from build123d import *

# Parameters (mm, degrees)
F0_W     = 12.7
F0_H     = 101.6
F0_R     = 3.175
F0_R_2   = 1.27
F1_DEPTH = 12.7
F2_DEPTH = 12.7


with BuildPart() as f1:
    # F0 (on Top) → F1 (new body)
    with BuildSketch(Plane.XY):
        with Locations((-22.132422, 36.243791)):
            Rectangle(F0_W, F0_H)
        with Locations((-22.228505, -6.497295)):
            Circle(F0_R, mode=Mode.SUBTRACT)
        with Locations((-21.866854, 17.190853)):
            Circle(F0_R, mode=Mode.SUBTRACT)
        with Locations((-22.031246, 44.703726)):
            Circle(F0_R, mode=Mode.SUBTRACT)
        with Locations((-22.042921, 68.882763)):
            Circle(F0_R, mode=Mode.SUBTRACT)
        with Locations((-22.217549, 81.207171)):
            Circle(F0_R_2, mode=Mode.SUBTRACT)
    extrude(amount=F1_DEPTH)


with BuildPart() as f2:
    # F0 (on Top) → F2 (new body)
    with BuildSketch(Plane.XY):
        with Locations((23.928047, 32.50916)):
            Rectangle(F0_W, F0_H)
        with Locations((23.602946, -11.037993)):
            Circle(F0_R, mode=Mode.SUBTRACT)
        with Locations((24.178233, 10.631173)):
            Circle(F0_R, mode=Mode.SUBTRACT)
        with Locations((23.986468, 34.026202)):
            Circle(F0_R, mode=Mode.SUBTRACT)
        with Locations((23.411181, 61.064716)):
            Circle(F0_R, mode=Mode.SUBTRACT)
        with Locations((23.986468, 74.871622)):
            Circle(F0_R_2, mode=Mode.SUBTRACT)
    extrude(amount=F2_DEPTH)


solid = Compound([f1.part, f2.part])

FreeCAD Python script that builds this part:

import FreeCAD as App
import Part
import Sketcher

V = App.Vector
Q = App.Units.Quantity


def add_polygon(sketch, points):
    """Adds a closed chain of lines whose ends are joined by coincident constraints."""
    first, n = sketch.GeometryCount, len(points)
    for a, b in zip(points, points[1:] + points[:1]):
        sketch.addGeometry(Part.LineSegment(App.Vector(*a, 0), App.Vector(*b, 0)), False)
    for i in range(n):
        sketch.addConstraint(Sketcher.Constraint("Coincident", first + i, 2, first + (i + 1) % n, 1))

doc = App.newDocument("Part")
body = doc.addObject("PartDesign::Body", "Body")

sketch1 = body.newObject("Sketcher::SketchObject", "Sketch")
sketch1.AttachmentSupport = (doc.getObject("XY_Plane"), [""])
sketch1.MapMode = "FlatFace"
add_polygon(sketch1, [(-28.5, 87), (-28.5, -14.6), (-15.8, -14.6), (-15.8, 87)])
sketch1.addGeometry(Part.Circle(V(-22.2, -6.5, 0), V(0, 0, 1), 3.2), False)
sketch1.addGeometry(Part.Circle(V(-21.9, 17.2, 0), V(0, 0, 1), 3.2), False)
sketch1.addGeometry(Part.Circle(V(-22.2, 81.2, 0), V(0, 0, 1), 1.3), False)
sketch1.addGeometry(Part.Circle(V(-22, 44.7, 0), V(0, 0, 1), 3.2), False)
sketch1.addGeometry(Part.Circle(V(-22, 68.9, 0), V(0, 0, 1), 3.2), False)
sketch1.addConstraint(Sketcher.Constraint("Vertical", 0))
sketch1.addConstraint(Sketcher.Constraint("Horizontal", 1))
sketch1.addConstraint(Sketcher.Constraint("Vertical", 2))
sketch1.addConstraint(Sketcher.Constraint("Horizontal", 3))
sketch1.addConstraint(Sketcher.Constraint("Equal", 4, 5))
sketch1.addConstraint(Sketcher.Constraint("Equal", 5, 7))
sketch1.addConstraint(Sketcher.Constraint("Equal", 7, 8))
sketch1.addConstraint(Sketcher.Constraint("Diameter", 6, Q("0.1 in")))
sketch1.addConstraint(Sketcher.Constraint("Diameter", 4, Q("0.25 in")))
sketch1.addConstraint(Sketcher.Constraint("DistanceY", 0, 2, 0, 1, Q("4 in")))
sketch1.addConstraint(Sketcher.Constraint("DistanceX", 1, 1, 1, 2, Q("0.5 in")))
sketch1.addConstraint(Sketcher.Constraint("DistanceX", 0, 2, 8, 3, Q("6.439501 mm")))
sketch1.addConstraint(Sketcher.Constraint("DistanceX", 6, 3, -1, 1, Q("22.217549 mm")))
sketch1.addConstraint(Sketcher.Constraint("DistanceY", -1, 1, 6, 3, Q("81.207171 mm")))
sketch1.addConstraint(Sketcher.Constraint("DistanceX", 8, 3, -1, 1, Q("22.042921 mm")))
sketch1.addConstraint(Sketcher.Constraint("DistanceY", 0, 2, -1, 1, Q("14.556209 mm")))
sketch1.addConstraint(Sketcher.Constraint("DistanceX", 4, 3, 5, 3, Q("0.361651 mm")))
sketch1.addConstraint(Sketcher.Constraint("DistanceY", 4, 3, 5, 3, Q("23.688148 mm")))
sketch1.addConstraint(Sketcher.Constraint("DistanceY", 5, 3, 6, 3, Q("64.016318 mm")))
sketch1.addConstraint(Sketcher.Constraint("DistanceX", 7, 3, 5, 3, Q("0.164392 mm")))
sketch1.addConstraint(Sketcher.Constraint("DistanceY", 4, 3, 7, 3, Q("51.201021 mm")))
sketch1.addConstraint(Sketcher.Constraint("DistanceY", 8, 3, 6, 3, Q("12.324408 mm")))
sketch1.addConstraint(Sketcher.Constraint("DistanceX", 5, 3, 1, 2, Q("6.084432 mm")))
pad1 = body.newObject("PartDesign::Pad", "Pad")
pad1.Profile = sketch1
pad1.Length = Q("0.5 in")
body2 = doc.addObject("PartDesign::Body", "Body001")

sketch2 = body2.newObject("Sketcher::SketchObject", "Sketch001")
sketch2.AttachmentSupport = (doc.getObject("XY_Plane001"), [""])
sketch2.MapMode = "FlatFace"
add_polygon(sketch2, [(17.6, 83.3), (17.6, -18.3), (30.3, -18.3), (30.3, 83.3)])
sketch2.addGeometry(Part.Circle(V(23.6, -11, 0), V(0, 0, 1), 3.2), False)
sketch2.addGeometry(Part.Circle(V(24.2, 10.6, 0), V(0, 0, 1), 3.2), False)
sketch2.addGeometry(Part.Circle(V(23.4, 61.1, 0), V(0, 0, 1), 3.2), False)
sketch2.addGeometry(Part.Circle(V(24, 34, 0), V(0, 0, 1), 3.2), False)
sketch2.addGeometry(Part.Circle(V(24, 74.9, 0), V(0, 0, 1), 1.3), False)
sketch2.addConstraint(Sketcher.Constraint("Vertical", 0))
sketch2.addConstraint(Sketcher.Constraint("Horizontal", 1))
sketch2.addConstraint(Sketcher.Constraint("Vertical", 2))
sketch2.addConstraint(Sketcher.Constraint("Horizontal", 3))
sketch2.addConstraint(Sketcher.Constraint("Equal", 4, 5))
sketch2.addConstraint(Sketcher.Constraint("Equal", 5, 6))
sketch2.addConstraint(Sketcher.Constraint("Equal", 6, 7))
sketch2.addConstraint(Sketcher.Constraint("Vertical", 7, 3, 8, 3))
sketch2.addConstraint(Sketcher.Constraint("Diameter", 8, Q("0.1 in")))
sketch2.addConstraint(Sketcher.Constraint("Diameter", 4, Q("0.25 in")))
sketch2.addConstraint(Sketcher.Constraint("DistanceY", 0, 2, 0, 1, Q("4 in")))
sketch2.addConstraint(Sketcher.Constraint("DistanceX", 1, 1, 1, 2, Q("0.5 in")))
sketch2.addConstraint(Sketcher.Constraint("DistanceX", -1, 1, 6, 3, Q("0.9217 in")))
sketch2.addConstraint(Sketcher.Constraint("DistanceX", 0, 2, 7, 3, Q("0.2523 in")))
sketch2.addConstraint(Sketcher.Constraint("DistanceY", -1, 1, 7, 3, Q("34.026202 mm")))
sketch2.addConstraint(Sketcher.Constraint("DistanceX", 0, 2, 4, 3, Q("6.024899 mm")))
sketch2.addConstraint(Sketcher.Constraint("DistanceY", 0, 2, -1, 1, Q("18.29084 mm")))
sketch2.addConstraint(Sketcher.Constraint("DistanceX", 6, 3, 5, 3, Q("0.767052 mm")))
sketch2.addConstraint(Sketcher.Constraint("DistanceY", 4, 3, 6, 3, Q("72.102709 mm")))
sketch2.addConstraint(Sketcher.Constraint("DistanceY", 5, 3, 7, 3, Q("23.395029 mm")))
sketch2.addConstraint(Sketcher.Constraint("DistanceY", 7, 3, 8, 3, Q("40.84542 mm")))
sketch2.addConstraint(Sketcher.Constraint("DistanceX", -1, 1, 4, 3, Q("23.602946 mm")))
sketch2.addConstraint(Sketcher.Constraint("DistanceY", 4, 3, -1, 1, Q("11.037993 mm")))
pad2 = body2.newObject("PartDesign::Pad", "Pad001")
pad2.Profile = sketch2
pad2.Length = Q("0.5 in")

doc.recompute()
